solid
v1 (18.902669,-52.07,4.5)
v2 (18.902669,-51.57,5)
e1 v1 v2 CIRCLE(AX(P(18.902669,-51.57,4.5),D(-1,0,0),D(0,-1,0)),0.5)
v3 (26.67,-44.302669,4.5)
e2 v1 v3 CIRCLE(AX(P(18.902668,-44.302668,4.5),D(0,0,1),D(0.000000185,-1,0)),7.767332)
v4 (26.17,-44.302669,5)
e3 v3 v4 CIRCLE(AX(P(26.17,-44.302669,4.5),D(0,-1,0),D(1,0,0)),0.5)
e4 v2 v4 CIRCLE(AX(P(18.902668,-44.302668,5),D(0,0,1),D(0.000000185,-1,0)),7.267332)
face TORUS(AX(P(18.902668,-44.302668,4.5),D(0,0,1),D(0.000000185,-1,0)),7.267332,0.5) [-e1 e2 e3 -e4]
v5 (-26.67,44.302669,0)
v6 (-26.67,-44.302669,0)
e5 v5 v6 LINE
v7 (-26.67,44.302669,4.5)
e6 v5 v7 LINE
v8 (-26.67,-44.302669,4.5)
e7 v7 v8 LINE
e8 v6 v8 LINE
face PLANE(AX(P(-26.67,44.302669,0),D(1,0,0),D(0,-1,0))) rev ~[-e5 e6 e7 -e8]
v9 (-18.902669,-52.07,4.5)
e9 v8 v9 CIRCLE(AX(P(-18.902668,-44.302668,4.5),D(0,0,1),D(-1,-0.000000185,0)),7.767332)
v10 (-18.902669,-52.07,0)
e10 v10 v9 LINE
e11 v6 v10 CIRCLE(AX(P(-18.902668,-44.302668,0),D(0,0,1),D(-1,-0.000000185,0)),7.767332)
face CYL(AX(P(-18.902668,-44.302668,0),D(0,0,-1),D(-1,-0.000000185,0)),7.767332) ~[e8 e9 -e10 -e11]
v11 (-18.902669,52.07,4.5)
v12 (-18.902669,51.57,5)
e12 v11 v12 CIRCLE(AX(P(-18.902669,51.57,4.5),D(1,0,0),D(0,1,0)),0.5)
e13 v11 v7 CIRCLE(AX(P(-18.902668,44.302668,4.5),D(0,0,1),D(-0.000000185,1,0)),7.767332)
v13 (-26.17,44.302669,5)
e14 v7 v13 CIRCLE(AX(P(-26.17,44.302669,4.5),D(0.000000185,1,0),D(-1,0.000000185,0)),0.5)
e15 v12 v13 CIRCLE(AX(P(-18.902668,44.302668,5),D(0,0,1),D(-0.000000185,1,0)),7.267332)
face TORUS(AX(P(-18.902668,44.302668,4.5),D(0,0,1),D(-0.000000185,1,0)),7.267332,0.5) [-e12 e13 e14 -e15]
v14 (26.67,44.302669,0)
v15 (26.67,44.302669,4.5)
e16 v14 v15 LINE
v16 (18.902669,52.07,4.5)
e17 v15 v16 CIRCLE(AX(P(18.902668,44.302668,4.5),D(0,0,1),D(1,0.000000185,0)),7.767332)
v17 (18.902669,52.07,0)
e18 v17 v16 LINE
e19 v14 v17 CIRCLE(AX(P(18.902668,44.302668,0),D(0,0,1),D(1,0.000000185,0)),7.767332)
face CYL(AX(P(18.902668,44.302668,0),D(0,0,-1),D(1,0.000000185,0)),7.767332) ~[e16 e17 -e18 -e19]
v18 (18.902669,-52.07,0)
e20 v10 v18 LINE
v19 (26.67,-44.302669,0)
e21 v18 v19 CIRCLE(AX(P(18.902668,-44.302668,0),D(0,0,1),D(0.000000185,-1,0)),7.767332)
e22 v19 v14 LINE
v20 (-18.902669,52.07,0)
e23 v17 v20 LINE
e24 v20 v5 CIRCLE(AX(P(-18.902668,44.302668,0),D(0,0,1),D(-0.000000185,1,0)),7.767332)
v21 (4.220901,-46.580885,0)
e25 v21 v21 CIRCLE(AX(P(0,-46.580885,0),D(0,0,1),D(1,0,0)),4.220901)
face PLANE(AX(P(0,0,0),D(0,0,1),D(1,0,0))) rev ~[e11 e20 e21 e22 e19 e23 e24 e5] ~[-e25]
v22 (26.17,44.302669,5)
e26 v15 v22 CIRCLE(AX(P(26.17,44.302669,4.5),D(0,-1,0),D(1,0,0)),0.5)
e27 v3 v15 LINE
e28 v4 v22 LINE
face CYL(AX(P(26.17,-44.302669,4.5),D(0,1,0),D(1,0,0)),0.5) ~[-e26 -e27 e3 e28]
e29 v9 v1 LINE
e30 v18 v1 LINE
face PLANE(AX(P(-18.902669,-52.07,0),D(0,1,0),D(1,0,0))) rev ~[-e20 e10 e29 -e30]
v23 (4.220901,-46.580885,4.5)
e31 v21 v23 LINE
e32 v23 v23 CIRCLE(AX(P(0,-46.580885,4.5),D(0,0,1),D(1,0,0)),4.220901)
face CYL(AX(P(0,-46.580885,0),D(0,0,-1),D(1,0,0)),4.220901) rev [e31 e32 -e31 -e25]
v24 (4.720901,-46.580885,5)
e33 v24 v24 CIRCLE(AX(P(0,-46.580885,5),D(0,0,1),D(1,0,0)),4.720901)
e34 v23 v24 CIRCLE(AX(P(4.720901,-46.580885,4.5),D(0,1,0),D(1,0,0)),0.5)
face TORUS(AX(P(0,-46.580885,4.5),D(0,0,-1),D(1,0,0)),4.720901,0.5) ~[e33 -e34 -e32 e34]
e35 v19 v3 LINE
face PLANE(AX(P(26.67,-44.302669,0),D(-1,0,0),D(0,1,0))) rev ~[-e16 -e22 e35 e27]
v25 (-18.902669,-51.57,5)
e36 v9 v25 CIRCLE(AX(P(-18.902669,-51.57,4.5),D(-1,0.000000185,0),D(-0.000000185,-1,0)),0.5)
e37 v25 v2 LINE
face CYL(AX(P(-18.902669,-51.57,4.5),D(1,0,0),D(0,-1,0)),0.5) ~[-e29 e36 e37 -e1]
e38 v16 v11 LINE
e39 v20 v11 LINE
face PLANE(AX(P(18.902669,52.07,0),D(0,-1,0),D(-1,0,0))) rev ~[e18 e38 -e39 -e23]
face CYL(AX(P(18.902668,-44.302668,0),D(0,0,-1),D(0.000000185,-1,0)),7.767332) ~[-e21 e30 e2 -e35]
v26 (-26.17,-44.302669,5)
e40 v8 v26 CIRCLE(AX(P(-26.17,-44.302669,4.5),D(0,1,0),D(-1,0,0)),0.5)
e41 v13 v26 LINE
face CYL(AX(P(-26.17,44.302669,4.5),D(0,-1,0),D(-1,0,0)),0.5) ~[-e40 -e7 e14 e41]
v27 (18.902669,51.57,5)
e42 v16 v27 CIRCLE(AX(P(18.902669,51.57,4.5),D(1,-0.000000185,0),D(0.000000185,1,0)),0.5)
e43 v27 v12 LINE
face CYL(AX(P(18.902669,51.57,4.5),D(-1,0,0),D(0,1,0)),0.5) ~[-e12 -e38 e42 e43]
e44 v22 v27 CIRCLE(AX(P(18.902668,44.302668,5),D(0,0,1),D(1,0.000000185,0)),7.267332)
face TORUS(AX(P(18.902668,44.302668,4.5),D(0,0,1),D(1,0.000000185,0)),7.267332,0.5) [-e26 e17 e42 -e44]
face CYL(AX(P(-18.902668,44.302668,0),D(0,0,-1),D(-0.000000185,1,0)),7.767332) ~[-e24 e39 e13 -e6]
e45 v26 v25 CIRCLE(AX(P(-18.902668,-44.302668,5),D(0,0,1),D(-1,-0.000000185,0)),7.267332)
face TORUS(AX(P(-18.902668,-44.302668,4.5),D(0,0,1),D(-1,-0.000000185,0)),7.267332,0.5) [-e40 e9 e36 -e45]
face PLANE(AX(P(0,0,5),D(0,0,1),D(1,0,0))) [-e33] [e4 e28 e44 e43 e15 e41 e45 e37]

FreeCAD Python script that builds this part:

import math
import FreeCAD as App
import Part
import Sketcher
from FreeCAD import Vector


def edges_at(feature, points):
    """Names of the edges that pass closest to the given points."""
    edges = feature.Shape.Edges
    near = lambda p: min(range(len(edges)), key=lambda i: edges[i].distToShape(Part.Vertex(*p))[0])
    return sorted({f"Edge{near(p) + 1}" for p in points})

doc = App.newDocument("Part")
body = doc.addObject("PartDesign::Body", "Body")

# Sketch on XY plane
sketch1 = body.newObject("Sketcher::SketchObject", "Sketch")
sketch1.AttachmentSupport = (doc.getObject("XY_Plane"), [""])
sketch1.MapMode = "FlatFace"
sketch1.addGeometry([
    Part.ArcOfCircle(Part.Circle(Vector(18.9, 44.3, 0), Vector(0, 0, 1), 7.8), math.radians(0), math.radians(90)),  # 0
    Part.LineSegment(Vector(18.9, 52.1, 0), Vector(-18.9, 52.1, 0)),  # 1
    Part.ArcOfCircle(Part.Circle(Vector(-18.9, 44.3, 0), Vector(0, 0, 1), 7.8), math.radians(90), math.radians(180)),  # 2
    Part.LineSegment(Vector(-26.7, 44.3, 0), Vector(-26.7, -44.3, 0)),  # 3
    Part.ArcOfCircle(Part.Circle(Vector(-18.9, -44.3, 0), Vector(0, 0, 1), 7.8), math.radians(-180), math.radians(-90)),  # 4
    Part.LineSegment(Vector(-18.9, -52.1, 0), Vector(18.9, -52.1, 0)),  # 5
    Part.ArcOfCircle(Part.Circle(Vector(18.9, -44.3, 0), Vector(0, 0, 1), 7.8), math.radians(-90), math.radians(0)),  # 6
    Part.LineSegment(Vector(26.7, -44.3, 0), Vector(26.7, 44.3, 0)),  # 7
    Part.Circle(Vector(0, -46.6, 0), Vector(0, 0, 1), 4.2),  # 8
], False)
sketch1.addConstraint([
    Sketcher.Constraint("Tangent", 0, 2, 1, 1),
    Sketcher.Constraint("Tangent", 1, 2, 2, 1),
    Sketcher.Constraint("Tangent", 2, 2, 3, 1),
    Sketcher.Constraint("Tangent", 3, 2, 4, 1),
    Sketcher.Constraint("Tangent", 4, 2, 5, 1),
    Sketcher.Constraint("Tangent", 5, 2, 6, 1),
    Sketcher.Constraint("Tangent", 6, 2, 7, 1),
    Sketcher.Constraint("Tangent", 7, 2, 0, 1),
    Sketcher.Constraint("Horizontal", 1),
    Sketcher.Constraint("Vertical", 3),
    Sketcher.Constraint("Horizontal", 5),
    Sketcher.Constraint("Vertical", 7),
    Sketcher.Constraint("Equal", 0, 2),
    Sketcher.Constraint("Equal", 2, 4),
    Sketcher.Constraint("Equal", 4, 6),
    Sketcher.Constraint("Symmetric", 0, 3, 4, 3, -1, 1),
    Sketcher.Constraint("PointOnObject", 8, 3, -2),
    Sketcher.Constraint("Diameter", 8, 8.441802),
    Sketcher.Constraint("DistanceY", -1, 1, 0, 2, 52.07),
    Sketcher.Constraint("DistanceX", 2, 2, -1, 1, 26.67),
    Sketcher.Constraint("Radius", 0, 7.767332),
    Sketcher.Constraint("DistanceY", 8, 3, -1, 1, 46.580885),
])
pad1 = body.newObject("PartDesign::Pad", "Pad")
pad1.Profile = sketch1
pad1.Length = 5
doc.recompute()

fillet = body.newObject("PartDesign::Fillet", "Fillet")
fillet.Base = (pad1, edges_at(pad1, [
    (26.67, 0, 5),
    (24.395, 49.795, 5),
    (0, 52.07, 5),
    (-24.395, 49.795, 5),
    (-26.67, 0, 5),
    (-24.395, -49.795, 5),
    (0, -52.07, 5),
    (24.395, -49.795, 5),
    (-4.221, -46.581, 5),
]))
fillet.Radius = 0.5

doc.recompute()
